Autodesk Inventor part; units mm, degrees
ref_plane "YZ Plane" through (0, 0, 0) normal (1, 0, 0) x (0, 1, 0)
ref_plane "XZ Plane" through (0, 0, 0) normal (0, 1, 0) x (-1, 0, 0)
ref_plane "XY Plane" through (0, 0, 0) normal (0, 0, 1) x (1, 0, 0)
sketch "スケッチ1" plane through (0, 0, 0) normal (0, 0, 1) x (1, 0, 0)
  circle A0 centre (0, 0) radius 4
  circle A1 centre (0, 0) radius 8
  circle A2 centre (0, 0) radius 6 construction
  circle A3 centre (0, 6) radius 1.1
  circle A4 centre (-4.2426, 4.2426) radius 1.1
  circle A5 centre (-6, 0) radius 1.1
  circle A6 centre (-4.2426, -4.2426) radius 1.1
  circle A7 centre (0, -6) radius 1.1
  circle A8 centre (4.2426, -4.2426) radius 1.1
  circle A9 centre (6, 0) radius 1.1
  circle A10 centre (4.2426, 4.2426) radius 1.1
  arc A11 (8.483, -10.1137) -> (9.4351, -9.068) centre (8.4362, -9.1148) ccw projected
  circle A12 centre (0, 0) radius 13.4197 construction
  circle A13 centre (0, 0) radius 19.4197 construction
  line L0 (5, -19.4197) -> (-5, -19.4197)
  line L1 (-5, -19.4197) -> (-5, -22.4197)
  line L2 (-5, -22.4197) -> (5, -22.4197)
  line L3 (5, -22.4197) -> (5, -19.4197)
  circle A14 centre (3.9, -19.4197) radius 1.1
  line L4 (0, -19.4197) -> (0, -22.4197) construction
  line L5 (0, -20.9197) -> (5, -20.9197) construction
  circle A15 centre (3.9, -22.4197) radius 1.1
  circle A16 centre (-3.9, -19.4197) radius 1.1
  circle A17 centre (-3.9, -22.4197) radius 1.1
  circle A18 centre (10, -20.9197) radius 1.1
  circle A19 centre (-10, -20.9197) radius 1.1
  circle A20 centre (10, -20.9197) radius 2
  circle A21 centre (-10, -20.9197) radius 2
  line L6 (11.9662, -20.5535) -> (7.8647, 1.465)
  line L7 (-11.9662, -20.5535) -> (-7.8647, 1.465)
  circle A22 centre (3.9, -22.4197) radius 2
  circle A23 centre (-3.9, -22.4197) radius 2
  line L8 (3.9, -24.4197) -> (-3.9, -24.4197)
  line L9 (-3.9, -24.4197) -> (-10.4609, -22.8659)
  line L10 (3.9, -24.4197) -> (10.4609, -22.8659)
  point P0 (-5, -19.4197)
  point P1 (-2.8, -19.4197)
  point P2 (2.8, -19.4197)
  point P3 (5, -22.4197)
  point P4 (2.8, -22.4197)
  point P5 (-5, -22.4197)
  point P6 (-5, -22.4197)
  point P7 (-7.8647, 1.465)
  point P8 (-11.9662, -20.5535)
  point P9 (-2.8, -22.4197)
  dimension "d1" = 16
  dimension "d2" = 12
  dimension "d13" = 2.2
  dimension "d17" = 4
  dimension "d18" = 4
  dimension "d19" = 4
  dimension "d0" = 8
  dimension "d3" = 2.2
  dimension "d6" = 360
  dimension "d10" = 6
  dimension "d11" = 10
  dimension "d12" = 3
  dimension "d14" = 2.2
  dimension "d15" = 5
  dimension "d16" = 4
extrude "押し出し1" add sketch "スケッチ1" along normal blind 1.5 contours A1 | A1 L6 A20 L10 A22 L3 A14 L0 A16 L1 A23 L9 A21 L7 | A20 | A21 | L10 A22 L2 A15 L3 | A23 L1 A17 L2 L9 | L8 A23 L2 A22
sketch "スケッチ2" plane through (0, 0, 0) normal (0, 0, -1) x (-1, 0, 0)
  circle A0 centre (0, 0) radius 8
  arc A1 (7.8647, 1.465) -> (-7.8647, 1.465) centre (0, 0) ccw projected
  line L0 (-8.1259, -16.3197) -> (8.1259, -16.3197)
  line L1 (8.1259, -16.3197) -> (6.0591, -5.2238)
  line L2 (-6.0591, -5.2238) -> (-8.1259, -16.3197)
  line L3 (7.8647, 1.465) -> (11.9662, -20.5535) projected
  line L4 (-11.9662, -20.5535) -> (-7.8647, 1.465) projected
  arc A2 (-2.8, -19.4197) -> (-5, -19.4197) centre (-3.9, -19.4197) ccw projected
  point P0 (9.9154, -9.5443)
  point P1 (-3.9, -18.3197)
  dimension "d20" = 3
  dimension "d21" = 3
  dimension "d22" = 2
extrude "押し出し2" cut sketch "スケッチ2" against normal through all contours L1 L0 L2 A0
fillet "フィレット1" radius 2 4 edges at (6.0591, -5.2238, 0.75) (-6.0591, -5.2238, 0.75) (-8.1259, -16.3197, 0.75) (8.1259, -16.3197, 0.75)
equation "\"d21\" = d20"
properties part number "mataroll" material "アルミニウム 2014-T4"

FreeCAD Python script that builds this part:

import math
import FreeCAD as App
import Part
import Sketcher
Q = App.Units.Quantity


def edges_at(feature, points):
    """Names of the edges that pass closest to the given points."""
    edges = feature.Shape.Edges
    near = lambda p: min(range(len(edges)), key=lambda i: edges[i].distToShape(Part.Vertex(*p))[0])
    return sorted({f"Edge{near(p) + 1}" for p in points})

doc = App.newDocument("Part")
body = doc.addObject("PartDesign::Body", "Body")

sketch1 = body.newObject("Sketcher::SketchObject", "Sketch")
sketch1.AttachmentSupport = (doc.getObject("XY_Plane"), [""])
sketch1.MapMode = "FlatFace"
sketch1.addGeometry([
    Part.ArcOfCircle(Part.Circle(App.Vector(0, 0, 0), App.Vector(0, 0, 1), 8), math.radians(11), math.radians(169)),
    Part.LineSegment(App.Vector(-7.9, 1.5, 0), App.Vector(-12, -20.6, 0)),
    Part.ArcOfCircle(Part.Circle(App.Vector(-10, -20.9, 0), App.Vector(0, 0, 1), 2), math.radians(169), math.radians(257)),
    Part.LineSegment(App.Vector(-10.5, -22.9, 0), App.Vector(-3.9, -24.4, 0)),
    Part.LineSegment(App.Vector(-3.9, -24.4, 0), App.Vector(3.9, -24.4, 0)),
    Part.LineSegment(App.Vector(3.9, -24.4, 0), App.Vector(10.5, -22.9, 0)),
    Part.ArcOfCircle(Part.Circle(App.Vector(10, -20.9, 0), App.Vector(0, 0, 1), 2), math.radians(-77), math.radians(11)),
    Part.LineSegment(App.Vector(12, -20.6, 0), App.Vector(7.9, 1.5, 0)),
    Part.Circle(App.Vector(-4.2, -4.2, 0), App.Vector(0, 0, 1), 1.1),
    Part.Circle(App.Vector(-6, 0, 0), App.Vector(0, 0, 1), 1.1),
    Part.Circle(App.Vector(-4.2, 4.2, 0), App.Vector(0, 0, 1), 1.1),
    Part.Circle(App.Vector(0, -6, 0), App.Vector(0, 0, 1), 1.1),
    Part.Circle(App.Vector(4.2, -4.2, 0), App.Vector(0, 0, 1), 1.1),
    Part.Circle(App.Vector(0, 0, 0), App.Vector(0, 0, 1), 4),
    Part.Circle(App.Vector(0, 6, 0), App.Vector(0, 0, 1), 1.1),
    Part.Circle(App.Vector(4.2, 4.2, 0), App.Vector(0, 0, 1), 1.1),
    Part.Circle(App.Vector(6, 0, 0), App.Vector(0, 0, 1), 1.1),
    Part.LineSegment(App.Vector(5, -19.4, 0), App.Vector(5, -22.4, 0)),
    Part.ArcOfCircle(Part.Circle(App.Vector(3.9, -22.4, 0), App.Vector(0, 0, 1), 1.1), math.radians(180), math.radians(360)),
    Part.LineSegment(App.Vector(2.8, -22.4, 0), App.Vector(-2.8, -22.4, 0)),
    Part.ArcOfCircle(Part.Circle(App.Vector(-3.9, -22.4, 0), App.Vector(0, 0, 1), 1.1), math.radians(180), math.radians(360)),
    Part.LineSegment(App.Vector(-5, -22.4, 0), App.Vector(-5, -19.4, 0)),
    Part.ArcOfCircle(Part.Circle(App.Vector(-3.9, -19.4, 0), App.Vector(0, 0, 1), 1.1), math.radians(0), math.radians(180)),
    Part.LineSegment(App.Vector(-2.8, -19.4, 0), App.Vector(2.8, -19.4, 0)),
    Part.ArcOfCircle(Part.Circle(App.Vector(3.9, -19.4, 0), App.Vector(0, 0, 1), 1.1), math.radians(0), math.radians(180)),
    Part.Circle(App.Vector(10, -20.9, 0), App.Vector(0, 0, 1), 1.1),
    Part.Circle(App.Vector(-10, -20.9, 0), App.Vector(0, 0, 1), 1.1),
], False)
sketch1.addConstraint([
    Sketcher.Constraint("Tangent", 0, 2, 1, 1),
    Sketcher.Constraint("Tangent", 1, 2, 2, 1),
    Sketcher.Constraint("Tangent", 2, 2, 3, 1),
    Sketcher.Constraint("Coincident", 3, 2, 4, 1),
    Sketcher.Constraint("Coincident", 4, 2, 5, 1),
    Sketcher.Constraint("Tangent", 5, 2, 6, 1),
    Sketcher.Constraint("Tangent", 6, 2, 7, 1),
    Sketcher.Constraint("Tangent", 7, 2, 0, 1),
    Sketcher.Constraint("Tangent", 17, 2, 18, 2),
    Sketcher.Constraint("Coincident", 18, 1, 19, 1),
    Sketcher.Constraint("Coincident", 19, 2, 20, 2),
    Sketcher.Constraint("Tangent", 20, 1, 21, 1),
    Sketcher.Constraint("Tangent", 21, 2, 22, 2),
    Sketcher.Constraint("Coincident", 22, 1, 23, 1),
    Sketcher.Constraint("Coincident", 23, 2, 24, 2),
    Sketcher.Constraint("Tangent", 24, 1, 17, 1),
    Sketcher.Constraint("Horizontal", 4),
    Sketcher.Constraint("Vertical", 17),
    Sketcher.Constraint("Horizontal", 19),
    Sketcher.Constraint("Vertical", 21),
    Sketcher.Constraint("Horizontal", 23),
    Sketcher.Constraint("Coincident", 0, 3, -1, 1),
    Sketcher.Constraint("Coincident", 13, 3, -1, 1),
    Sketcher.Constraint("Coincident", 25, 3, 6, 3),
    Sketcher.Constraint("Coincident", 26, 3, 2, 3),
    Sketcher.Constraint("Equal", 2, 6),
    Sketcher.Constraint("Equal", 8, 9),
    Sketcher.Constraint("Equal", 9, 10),
    Sketcher.Constraint("Equal", 10, 11),
    Sketcher.Constraint("Equal", 11, 12),
    Sketcher.Constraint("Equal", 12, 14),
    Sketcher.Constraint("Equal", 14, 15),
    Sketcher.Constraint("Equal", 15, 16),
    Sketcher.Constraint("Equal", 16, 18),
    Sketcher.Constraint("Equal", 18, 20),
    Sketcher.Constraint("Equal", 20, 22),
    Sketcher.Constraint("Equal", 22, 24),
    Sketcher.Constraint("Equal", 24, 25),
    Sketcher.Constraint("Equal", 25, 26),
    Sketcher.Constraint("Symmetric", 10, 3, 12, 3, -1, 1),
    Sketcher.Constraint("Symmetric", 11, 3, 14, 3, -1, 1),
    Sketcher.Constraint("Symmetric", 8, 3, 15, 3, -1, 1),
    Sketcher.Constraint("Symmetric", 9, 3, 16, 3, -1, 1),
    Sketcher.Constraint("Symmetric", 2, 3, 6, 3, -2),
    Sketcher.Constraint("Symmetric", 8, 3, 12, 3, -2),
    Sketcher.Constraint("Symmetric", 18, 3, 20, 3, -2),
    Sketcher.Constraint("PointOnObject", 9, 3, -1),
    Sketcher.Constraint("PointOnObject", 11, 3, -2),
    Sketcher.Constraint("Horizontal", 22, 3, 24, 3),
    Sketcher.Constraint("Horizontal", 2, 2, 5, 2),
    Sketcher.Constraint("Horizontal", 17, 2, 18, 1),
    Sketcher.Constraint("Horizontal", 21, 2, 22, 1),
    Sketcher.Constraint("Vertical", 22, 3, 3, 2),
    Sketcher.Constraint("Diameter", 13, Q("8 mm")),
    Sketcher.Constraint("Radius", 0, Q("8 mm")),
    Sketcher.Constraint("Radius", 2, Q("2 mm")),
    Sketcher.Constraint("Diameter", 8, Q("2.2 mm")),
    Sketcher.Constraint("DistanceY", 17, 2, 17, 1, Q("3 mm")),
    Sketcher.Constraint("DistanceX", 2, 3, -1, 1, Q("10 mm")),
    Sketcher.Constraint("DistanceX", 9, 3, -1, 1, Q("6 mm")),
    Sketcher.Constraint("DistanceY", 11, 3, -1, 1, Q("6 mm")),
    Sketcher.Constraint("DistanceX", -1, 1, 17, 2, Q("5 mm")),
    Sketcher.Constraint("DistanceY", 3, 2, 22, 3, Q("5 mm")),
    Sketcher.Constraint("DistanceY", 18, 3, 6, 3, Q("1.5 mm")),
    Sketcher.Constraint("DistanceY", 5, 2, -1, 1, Q("22.866 mm")),
    Sketcher.Constraint("DistanceY", 2, 3, 8, 3, Q("16.677 mm")),
    Sketcher.Constraint("DistanceX", 0, 2, 10, 3, Q("3.622 mm")),
])
pad1 = body.newObject("PartDesign::Pad", "Pad")
pad1.Profile = sketch1
pad1.Length = 1.5

sketch2 = body.newObject("Sketcher::SketchObject", "Sketch001")
sketch2.AttachmentSupport = (doc.getObject("XY_Plane"), [""])
sketch2.MapMode = "FlatFace"
sketch2.addGeometry([
    Part.LineSegment(App.Vector(-8, -16, 0), App.Vector(-6, -5, 0)),
    Part.ArcOfCircle(Part.Circle(App.Vector(0, 0, 0), App.Vector(0, 0, 1), 8), math.radians(-139), math.radians(-41)),
    Part.LineSegment(App.Vector(6, -5, 0), App.Vector(8, -16, 0)),
    Part.LineSegment(App.Vector(8, -16, 0), App.Vector(-8, -16, 0)),
], False)
sketch2.addConstraint([
    Sketcher.Constraint("Coincident", 0, 2, 1, 1),
    Sketcher.Constraint("Coincident", 1, 2, 2, 1),
    Sketcher.Constraint("Coincident", 2, 2, 3, 1),
    Sketcher.Constraint("Coincident", 3, 2, 0, 1),
    Sketcher.Constraint("Horizontal", 3),
    Sketcher.Constraint("Coincident", 1, 3, -1, 1),
    Sketcher.Constraint("Horizontal", 0, 2, 1, 2),
    Sketcher.Constraint("Equal", 0, 2),
    Sketcher.Constraint("Radius", 1, Q("8 mm")),
    Sketcher.Constraint("DistanceX", 3, 2, 3, 1, Q("16.2518 mm")),
    Sketcher.Constraint("DistanceX", 0, 2, -1, 1, Q("6.059 mm")),
    Sketcher.Constraint("DistanceY", 2, 2, 1, 2, Q("11.096 mm")),
])
pocket1 = body.newObject("PartDesign::Pocket", "Pocket")
pocket1.Profile = sketch2
pocket1.Type = "ThroughAll"
pocket1.Reversed = True
doc.recompute()

fillet = body.newObject("PartDesign::Fillet", "Fillet")
fillet.Base = (pocket1, edges_at(pocket1, [
    (6.059, -5.224, 0.75),
    (-6.059, -5.224, 0.75),
    (-8.126, -16.32, 0.75),
    (8.126, -16.32, 0.75),
]))
fillet.Radius = 2

doc.recompute()
